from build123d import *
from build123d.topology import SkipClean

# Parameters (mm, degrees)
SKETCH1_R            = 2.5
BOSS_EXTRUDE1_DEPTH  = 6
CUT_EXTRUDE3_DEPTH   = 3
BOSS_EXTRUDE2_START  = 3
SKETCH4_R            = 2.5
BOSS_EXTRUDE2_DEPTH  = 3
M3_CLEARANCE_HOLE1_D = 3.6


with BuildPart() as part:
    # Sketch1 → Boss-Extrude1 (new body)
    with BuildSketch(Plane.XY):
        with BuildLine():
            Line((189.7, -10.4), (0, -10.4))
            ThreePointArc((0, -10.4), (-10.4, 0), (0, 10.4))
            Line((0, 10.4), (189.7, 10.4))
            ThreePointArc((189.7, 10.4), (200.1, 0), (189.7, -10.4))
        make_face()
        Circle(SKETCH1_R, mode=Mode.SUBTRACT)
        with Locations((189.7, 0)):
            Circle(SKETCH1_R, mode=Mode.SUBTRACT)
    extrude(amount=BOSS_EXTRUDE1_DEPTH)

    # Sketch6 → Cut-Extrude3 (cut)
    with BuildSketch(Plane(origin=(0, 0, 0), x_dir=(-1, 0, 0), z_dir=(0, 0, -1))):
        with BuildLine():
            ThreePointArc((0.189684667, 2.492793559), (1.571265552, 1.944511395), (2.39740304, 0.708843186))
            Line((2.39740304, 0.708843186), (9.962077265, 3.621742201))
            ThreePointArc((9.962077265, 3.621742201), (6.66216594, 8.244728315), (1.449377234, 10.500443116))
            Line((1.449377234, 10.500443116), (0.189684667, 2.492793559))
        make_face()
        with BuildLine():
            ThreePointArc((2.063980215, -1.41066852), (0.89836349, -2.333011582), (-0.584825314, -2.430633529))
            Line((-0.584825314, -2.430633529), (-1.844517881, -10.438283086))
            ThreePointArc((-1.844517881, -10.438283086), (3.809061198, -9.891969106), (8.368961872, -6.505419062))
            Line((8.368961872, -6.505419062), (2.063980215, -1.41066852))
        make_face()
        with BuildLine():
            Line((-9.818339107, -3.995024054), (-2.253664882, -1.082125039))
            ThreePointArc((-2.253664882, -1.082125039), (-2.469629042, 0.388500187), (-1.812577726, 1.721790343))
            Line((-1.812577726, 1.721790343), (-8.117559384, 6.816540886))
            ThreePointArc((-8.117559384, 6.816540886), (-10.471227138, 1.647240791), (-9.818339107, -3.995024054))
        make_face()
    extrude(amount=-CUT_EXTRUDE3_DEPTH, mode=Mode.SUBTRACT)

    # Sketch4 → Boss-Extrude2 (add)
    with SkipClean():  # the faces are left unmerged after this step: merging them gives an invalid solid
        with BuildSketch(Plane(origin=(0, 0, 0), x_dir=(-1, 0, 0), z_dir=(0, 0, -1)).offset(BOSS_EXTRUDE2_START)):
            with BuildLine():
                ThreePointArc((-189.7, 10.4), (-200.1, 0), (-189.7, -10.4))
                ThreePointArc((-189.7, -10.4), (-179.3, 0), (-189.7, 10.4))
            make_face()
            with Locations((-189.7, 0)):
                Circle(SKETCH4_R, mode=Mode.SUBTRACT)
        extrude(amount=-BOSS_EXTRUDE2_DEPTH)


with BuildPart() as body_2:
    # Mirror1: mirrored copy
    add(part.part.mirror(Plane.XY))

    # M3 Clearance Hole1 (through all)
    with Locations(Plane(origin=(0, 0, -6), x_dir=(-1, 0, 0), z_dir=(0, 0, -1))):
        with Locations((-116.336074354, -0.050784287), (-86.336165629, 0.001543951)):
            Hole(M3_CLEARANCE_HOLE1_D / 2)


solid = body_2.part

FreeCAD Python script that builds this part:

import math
import FreeCAD as App
import Part
import Sketcher
from FreeCAD import Vector
Q = App.Units.Quantity

doc = App.newDocument("Part")
body = doc.addObject("PartDesign::Body", "Body")

# Sketch on XY plane
sketch1 = body.newObject("Sketcher::SketchObject", "Sketch")
sketch1.AttachmentSupport = (doc.getObject("XY_Plane"), [""])
sketch1.MapMode = "FlatFace"
sketch1.addGeometry(Part.LineSegment(Vector(0, -10.4, 0), Vector(189.7, -10.4, 0)), False)
sketch1.addGeometry(Part.ArcOfCircle(Part.Circle(Vector(189.7, 0, 0), Vector(0, 0, 1), 10.4), math.radians(-90), math.radians(90)), False)
sketch1.addGeometry(Part.LineSegment(Vector(189.7, 10.4, 0), Vector(0, 10.4, 0)), False)
sketch1.addGeometry(Part.ArcOfCircle(Part.Circle(Vector(0, 0, 0), Vector(0, 0, 1), 10.4), math.radians(90), math.radians(270)), False)
sketch1.addGeometry(Part.Circle(Vector(189.7, 0, 0), Vector(0, 0, 1), 2.5), False)
sketch1.addGeometry(Part.Circle(Vector(0, 0, 0), Vector(0, 0, 1), 2.5), False)
sketch1.addConstraint(Sketcher.Constraint("Tangent", 0, 2, 1, 1))
sketch1.addConstraint(Sketcher.Constraint("Tangent", 1, 2, 2, 1))
sketch1.addConstraint(Sketcher.Constraint("Tangent", 2, 2, 3, 1))
sketch1.addConstraint(Sketcher.Constraint("Tangent", 3, 2, 0, 1))
sketch1.addConstraint(Sketcher.Constraint("Horizontal", 0))
sketch1.addConstraint(Sketcher.Constraint("Horizontal", 2))
sketch1.addConstraint(Sketcher.Constraint("Coincident", 3, 3, -1, 1))
sketch1.addConstraint(Sketcher.Constraint("Coincident", 5, 3, -1, 1))
sketch1.addConstraint(Sketcher.Constraint("Coincident", 4, 3, 1, 3))
sketch1.addConstraint(Sketcher.Constraint("Equal", 4, 5))
sketch1.addConstraint(Sketcher.Constraint("Diameter", 4, 5.0))
sketch1.addConstraint(Sketcher.Constraint("Radius", 1, 10.4))
sketch1.addConstraint(Sketcher.Constraint("DistanceX", 0, 1, 0, 2, 189.7))
pad1 = body.newObject("PartDesign::Pad", "Pad")
pad1.Profile = sketch1
pad1.Length = 6

# Sketch on XY plane
sketch2 = body.newObject("Sketcher::SketchObject", "Sketch001")
sketch2.AttachmentSupport = (doc.getObject("XY_Plane"), [""])
sketch2.MapMode = "FlatFace"
sketch2.addGeometry(Part.ArcOfCircle(Part.Circle(Vector(0, 0, 0), Vector(0, 0, 1), 2.5), math.radians(94), math.radians(164)), False)
sketch2.addGeometry(Part.LineSegment(Vector(-2.4, 0.7, 0), Vector(-10, 3.6, 0)), False)
sketch2.addGeometry(Part.ArcOfCircle(Part.Circle(Vector(0, 0, 0), Vector(0, 0, 1), 10.6), math.radians(98), math.radians(160)), False)
sketch2.addGeometry(Part.LineSegment(Vector(-1.4, 10.5, 0), Vector(-0.2, 2.5, 0)), False)
sketch2.addGeometry(Part.ArcOfCircle(Part.Circle(Vector(0, 0, 0), Vector(0, 0, 1), 2.5), math.radians(-146), math.radians(-76)), False)
sketch2.addGeometry(Part.LineSegment(Vector(0.6, -2.4, 0), Vector(1.8, -10.4, 0)), False)
sketch2.addGeometry(Part.ArcOfCircle(Part.Circle(Vector(0, 0, 0), Vector(0, 0, 1), 10.6), math.radians(-142), math.radians(-80)), False)
sketch2.addGeometry(Part.LineSegment(Vector(-8.4, -6.5, 0), Vector(-2.1, -1.4, 0)), False)
sketch2.addGeometry(Part.LineSegment(Vector(9.8, -4, 0), Vector(2.3, -1.1, 0)), False)
sketch2.addGeometry(Part.ArcOfCircle(Part.Circle(Vector(0, 0, 0), Vector(0, 0, 1), 2.5), math.radians(-26), math.radians(44)), False)
sketch2.addGeometry(Part.LineSegment(Vector(1.8, 1.7, 0), Vector(8.1, 6.8, 0)), False)
sketch2.addGeometry(Part.ArcOfCircle(Part.Circle(Vector(0, 0, 0), Vector(0, 0, 1), 10.6), math.radians(-22), math.radians(40)), False)
sketch2.addConstraint(Sketcher.Constraint("Coincident", 0, 2, 1, 1))
sketch2.addConstraint(Sketcher.Constraint("Coincident", 1, 2, 2, 2))
sketch2.addConstraint(Sketcher.Constraint("Coincident", 2, 1, 3, 1))
sketch2.addConstraint(Sketcher.Constraint("Coincident", 3, 2, 0, 1))
sketch2.addConstraint(Sketcher.Constraint("Coincident", 4, 2, 5, 1))
sketch2.addConstraint(Sketcher.Constraint("Coincident", 5, 2, 6, 2))
sketch2.addConstraint(Sketcher.Constraint("Coincident", 6, 1, 7, 1))
sketch2.addConstraint(Sketcher.Constraint("Coincident", 7, 2, 4, 1))
sketch2.addConstraint(Sketcher.Constraint("Coincident", 8, 2, 9, 1))
sketch2.addConstraint(Sketcher.Constraint("Coincident", 9, 2, 10, 1))
sketch2.addConstraint(Sketcher.Constraint("Coincident", 10, 2, 11, 2))
sketch2.addConstraint(Sketcher.Constraint("Coincident", 11, 1, 8, 1))
sketch2.addConstraint(Sketcher.Constraint("Coincident", 0, 3, -1, 1))
sketch2.addConstraint(Sketcher.Constraint("Coincident", 2, 3, -1, 1))
sketch2.addConstraint(Sketcher.Constraint("Coincident", 4, 3, -1, 1))
sketch2.addConstraint(Sketcher.Constraint("Coincident", 6, 3, -1, 1))
sketch2.addConstraint(Sketcher.Constraint("Coincident", 9, 3, -1, 1))
sketch2.addConstraint(Sketcher.Constraint("Coincident", 11, 3, -1, 1))
sketch2.addConstraint(Sketcher.Constraint("Equal", 0, 4))
sketch2.addConstraint(Sketcher.Constraint("Equal", 2, 6))
sketch2.addConstraint(Sketcher.Constraint("Equal", 4, 9))
sketch2.addConstraint(Sketcher.Constraint("Equal", 6, 11))
sketch2.addConstraint(Sketcher.Constraint("Parallel", 3, 5))
sketch2.addConstraint(Sketcher.Constraint("Parallel", 1, 8))
sketch2.addConstraint(Sketcher.Constraint("Parallel", 7, 10))
sketch2.addConstraint(Sketcher.Constraint("Equal", 1, 3))
sketch2.addConstraint(Sketcher.Constraint("Equal", 3, 5))
sketch2.addConstraint(Sketcher.Constraint("Equal", 5, 7))
sketch2.addConstraint(Sketcher.Constraint("Equal", 7, 8))
sketch2.addConstraint(Sketcher.Constraint("Equal", 8, 10))
sketch2.addConstraint(Sketcher.Constraint("Radius", 0, 2.5))
sketch2.addConstraint(Sketcher.Constraint("Radius", 2, 10.6))
sketch2.addConstraint(Sketcher.Constraint("Angle", 1, Q("158.94 deg")))
sketch2.addConstraint(Sketcher.Constraint("Angle", 3, Q("-81.06 deg")))
sketch2.addConstraint(Sketcher.Constraint("Angle", 7, Q("38.94 deg")))
sketch2.addConstraint(Sketcher.Constraint("DistanceY", 0, 2, 1, 2, 2.912899))
pocket1 = body.newObject("PartDesign::Pocket", "Pocket")
pocket1.Profile = sketch2
pocket1.Length = 3
pocket1.Reversed = True

# Sketch on XY plane
sketch3 = body.newObject("Sketcher::SketchObject", "Sketch002")
sketch3.AttachmentSupport = (doc.getObject("XY_Plane"), [""])
sketch3.MapMode = "FlatFace"
sketch3.AttachmentOffset = App.Placement(Vector(0, 0, -3), App.Rotation())
sketch3.addGeometry(Part.Circle(Vector(189.7, 0, 0), Vector(0, 0, 1), 10.4), False)
sketch3.addGeometry(Part.Circle(Vector(189.7, 0, 0), Vector(0, 0, 1), 2.5), False)
sketch3.addConstraint(Sketcher.Constraint("Coincident", 1, 3, 0, 3))
sketch3.addConstraint(Sketcher.Constraint("PointOnObject", 0, 3, -1))
sketch3.addConstraint(Sketcher.Constraint("Diameter", 1, 5.0))
sketch3.addConstraint(Sketcher.Constraint("Diameter", 0, 20.8))
sketch3.addConstraint(Sketcher.Constraint("DistanceX", -1, 1, 0, 3, 189.7))
pad2 = body.newObject("PartDesign::Pad", "Pad001")
pad2.Profile = sketch3
pad2.Length = 3
body2 = doc.addObject("PartDesign::Body", "Body001")
doc.recompute()

mirroring = doc.addObject("Part::Mirroring", "Mirroring")
mirroring.Source = body
mirroring.Base = Vector(0, 0, 0)
mirroring.Normal = Vector(0, 0, 1)
body2.BaseFeature = mirroring
doc.recompute()

# Sketch on XY plane
sketch4 = body2.newObject("Sketcher::SketchObject", "Sketch003")
sketch4.AttachmentSupport = (doc.getObject("XY_Plane001"), [""])
sketch4.MapMode = "FlatFace"
sketch4.AttachmentOffset = App.Placement(Vector(0, 0, -6), App.Rotation())
sketch4.addGeometry(Part.Circle(Vector(116.3, -0.1, 0), Vector(0, 0, 1), 1.8), False)
sketch4.addGeometry(Part.Circle(Vector(86.3, 0, 0), Vector(0, 0, 1), 1.8), False)
sketch4.addConstraint(Sketcher.Constraint("Equal", 0, 1))
sketch4.addConstraint(Sketcher.Constraint("Diameter", 0, 3.6))
sketch4.addConstraint(Sketcher.Constraint("DistanceX", 1, 3, 0, 3, 29.999909))
sketch4.addConstraint(Sketcher.Constraint("DistanceY", 0, 3, 1, 3, 0.052328))
sketch4.addConstraint(Sketcher.Constraint("DistanceX", -1, 1, 0, 3, 116.336074))
sketch4.addConstraint(Sketcher.Constraint("DistanceY", 0, 3, -1, 1, 0.050784))
doc.recompute()
hole = body2.newObject("PartDesign::Hole", "Hole")
hole.Profile = sketch4
hole.ThreadType = "None"
hole.Diameter = 3.6
hole.DepthType = "ThroughAll"
hole.Reversed = True
body.Visibility = False
mirroring.Visibility = False

doc.recompute()
